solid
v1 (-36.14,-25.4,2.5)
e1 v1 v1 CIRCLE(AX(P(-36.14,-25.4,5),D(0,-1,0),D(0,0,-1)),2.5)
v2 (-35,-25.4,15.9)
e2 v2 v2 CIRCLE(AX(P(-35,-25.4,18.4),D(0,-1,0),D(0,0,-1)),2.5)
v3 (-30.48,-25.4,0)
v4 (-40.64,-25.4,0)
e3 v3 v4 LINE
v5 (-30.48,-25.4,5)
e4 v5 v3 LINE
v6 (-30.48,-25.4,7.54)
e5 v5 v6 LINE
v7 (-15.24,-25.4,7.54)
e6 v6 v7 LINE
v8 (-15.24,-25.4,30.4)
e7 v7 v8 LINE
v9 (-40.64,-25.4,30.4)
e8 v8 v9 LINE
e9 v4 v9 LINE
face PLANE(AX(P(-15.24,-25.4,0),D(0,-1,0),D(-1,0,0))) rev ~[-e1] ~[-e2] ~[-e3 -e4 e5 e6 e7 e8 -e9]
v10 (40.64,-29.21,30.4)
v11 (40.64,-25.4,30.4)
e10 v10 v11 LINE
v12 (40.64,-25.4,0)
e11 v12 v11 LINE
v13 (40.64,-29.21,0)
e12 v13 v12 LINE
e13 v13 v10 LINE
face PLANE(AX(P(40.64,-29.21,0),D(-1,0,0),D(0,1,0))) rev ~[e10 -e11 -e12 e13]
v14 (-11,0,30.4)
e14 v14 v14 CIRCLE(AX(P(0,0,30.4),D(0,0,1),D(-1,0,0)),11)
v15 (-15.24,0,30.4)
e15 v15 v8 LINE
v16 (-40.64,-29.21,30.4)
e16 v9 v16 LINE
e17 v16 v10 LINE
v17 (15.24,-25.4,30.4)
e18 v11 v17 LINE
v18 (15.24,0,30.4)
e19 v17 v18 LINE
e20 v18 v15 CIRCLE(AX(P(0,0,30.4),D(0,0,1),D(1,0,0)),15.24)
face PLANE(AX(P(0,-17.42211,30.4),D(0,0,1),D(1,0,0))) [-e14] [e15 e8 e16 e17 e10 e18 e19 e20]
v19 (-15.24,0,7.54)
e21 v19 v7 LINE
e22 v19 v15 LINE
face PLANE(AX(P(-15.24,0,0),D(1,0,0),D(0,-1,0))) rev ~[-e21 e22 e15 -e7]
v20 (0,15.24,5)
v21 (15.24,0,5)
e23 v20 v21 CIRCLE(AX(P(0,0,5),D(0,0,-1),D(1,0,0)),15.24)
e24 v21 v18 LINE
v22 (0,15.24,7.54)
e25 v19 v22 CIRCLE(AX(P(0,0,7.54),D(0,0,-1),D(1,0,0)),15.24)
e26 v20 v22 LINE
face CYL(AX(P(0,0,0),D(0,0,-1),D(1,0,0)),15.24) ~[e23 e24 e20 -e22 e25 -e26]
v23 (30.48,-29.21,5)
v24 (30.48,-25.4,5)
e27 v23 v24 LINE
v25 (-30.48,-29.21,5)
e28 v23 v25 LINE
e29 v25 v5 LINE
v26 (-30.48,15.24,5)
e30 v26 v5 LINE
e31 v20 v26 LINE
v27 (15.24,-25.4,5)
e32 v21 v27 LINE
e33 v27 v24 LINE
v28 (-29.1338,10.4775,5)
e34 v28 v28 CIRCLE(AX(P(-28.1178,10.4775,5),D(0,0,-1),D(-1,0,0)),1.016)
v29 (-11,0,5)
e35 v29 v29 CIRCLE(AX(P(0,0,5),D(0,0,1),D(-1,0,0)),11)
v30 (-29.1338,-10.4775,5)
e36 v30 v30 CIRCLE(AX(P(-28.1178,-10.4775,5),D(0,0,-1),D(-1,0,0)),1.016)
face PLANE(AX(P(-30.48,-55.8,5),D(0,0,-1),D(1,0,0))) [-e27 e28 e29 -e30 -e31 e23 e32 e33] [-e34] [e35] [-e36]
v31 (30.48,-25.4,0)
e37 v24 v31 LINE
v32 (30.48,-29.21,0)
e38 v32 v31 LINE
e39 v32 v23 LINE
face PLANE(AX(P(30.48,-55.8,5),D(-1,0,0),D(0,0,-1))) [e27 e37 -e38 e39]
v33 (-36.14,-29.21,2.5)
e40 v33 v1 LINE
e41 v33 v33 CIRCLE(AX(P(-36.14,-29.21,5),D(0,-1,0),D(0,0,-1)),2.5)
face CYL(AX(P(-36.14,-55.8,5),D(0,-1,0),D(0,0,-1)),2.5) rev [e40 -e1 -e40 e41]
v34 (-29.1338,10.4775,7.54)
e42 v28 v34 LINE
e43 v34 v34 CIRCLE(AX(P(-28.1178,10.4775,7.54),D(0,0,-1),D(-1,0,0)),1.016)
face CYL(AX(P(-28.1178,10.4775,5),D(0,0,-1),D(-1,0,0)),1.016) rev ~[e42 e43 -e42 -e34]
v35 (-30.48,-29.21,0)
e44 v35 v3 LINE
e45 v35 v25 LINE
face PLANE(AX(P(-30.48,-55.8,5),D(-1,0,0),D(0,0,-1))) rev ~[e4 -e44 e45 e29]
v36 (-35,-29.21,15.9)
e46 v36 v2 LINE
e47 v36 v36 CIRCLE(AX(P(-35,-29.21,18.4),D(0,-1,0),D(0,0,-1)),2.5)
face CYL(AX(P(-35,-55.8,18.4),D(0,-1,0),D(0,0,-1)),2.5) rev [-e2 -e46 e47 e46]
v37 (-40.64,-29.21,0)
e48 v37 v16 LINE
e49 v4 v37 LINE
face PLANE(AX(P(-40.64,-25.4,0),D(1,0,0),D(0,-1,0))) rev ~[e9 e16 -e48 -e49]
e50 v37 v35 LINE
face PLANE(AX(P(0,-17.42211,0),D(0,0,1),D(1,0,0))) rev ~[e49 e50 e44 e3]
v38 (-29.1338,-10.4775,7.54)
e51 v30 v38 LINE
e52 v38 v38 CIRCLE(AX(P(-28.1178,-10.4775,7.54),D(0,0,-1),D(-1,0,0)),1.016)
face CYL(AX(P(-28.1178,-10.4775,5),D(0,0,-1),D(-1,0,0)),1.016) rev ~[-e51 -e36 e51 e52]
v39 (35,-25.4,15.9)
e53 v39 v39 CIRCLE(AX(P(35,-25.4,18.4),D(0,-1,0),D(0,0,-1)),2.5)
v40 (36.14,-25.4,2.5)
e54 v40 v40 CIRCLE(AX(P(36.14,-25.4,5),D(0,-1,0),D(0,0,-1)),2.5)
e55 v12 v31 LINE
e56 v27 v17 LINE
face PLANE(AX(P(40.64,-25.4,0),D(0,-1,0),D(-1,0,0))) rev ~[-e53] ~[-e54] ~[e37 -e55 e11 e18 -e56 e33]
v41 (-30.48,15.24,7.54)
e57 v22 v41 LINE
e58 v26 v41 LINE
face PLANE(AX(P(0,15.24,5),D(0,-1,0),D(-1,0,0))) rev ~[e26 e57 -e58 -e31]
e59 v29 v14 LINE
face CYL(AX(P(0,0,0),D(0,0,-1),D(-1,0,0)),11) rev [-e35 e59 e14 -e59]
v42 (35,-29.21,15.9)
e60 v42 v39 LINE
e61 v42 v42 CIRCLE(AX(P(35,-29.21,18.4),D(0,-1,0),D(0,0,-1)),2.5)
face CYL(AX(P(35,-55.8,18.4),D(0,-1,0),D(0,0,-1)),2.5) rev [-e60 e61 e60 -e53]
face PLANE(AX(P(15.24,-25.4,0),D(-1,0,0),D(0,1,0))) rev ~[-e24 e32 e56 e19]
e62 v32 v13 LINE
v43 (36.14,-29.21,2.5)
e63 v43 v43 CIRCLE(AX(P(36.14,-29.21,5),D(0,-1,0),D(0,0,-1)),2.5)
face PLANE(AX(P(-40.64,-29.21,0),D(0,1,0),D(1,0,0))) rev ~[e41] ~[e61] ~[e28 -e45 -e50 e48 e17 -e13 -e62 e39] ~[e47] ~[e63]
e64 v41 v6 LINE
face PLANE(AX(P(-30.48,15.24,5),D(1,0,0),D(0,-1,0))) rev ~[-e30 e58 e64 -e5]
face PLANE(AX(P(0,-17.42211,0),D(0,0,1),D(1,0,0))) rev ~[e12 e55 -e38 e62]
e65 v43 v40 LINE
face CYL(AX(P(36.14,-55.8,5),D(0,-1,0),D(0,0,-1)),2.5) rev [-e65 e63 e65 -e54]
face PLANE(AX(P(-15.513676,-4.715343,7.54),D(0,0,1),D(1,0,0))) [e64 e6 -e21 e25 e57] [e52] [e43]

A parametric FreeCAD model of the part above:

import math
import FreeCAD as App
import Part
import Sketcher

V = App.Vector
Q = App.Units.Quantity

doc = App.newDocument("Part")
body = doc.addObject("PartDesign::Body", "Body")

sketch1 = body.newObject("Sketcher::SketchObject", "Sketch")
sketch1.AttachmentSupport = (doc.getObject("XY_Plane"), [""])
sketch1.MapMode = "FlatFace"
sketch1.addGeometry(Part.LineSegment(V(-40.64, -29.21, 0), V(40.64, -29.21, 0)), False)
sketch1.addGeometry(Part.LineSegment(V(40.64, -29.21, 0), V(40.64, -25.4, 0)), False)
sketch1.addGeometry(Part.LineSegment(V(40.64, -25.4, 0), V(15.24, -25.4, 0)), False)
sketch1.addGeometry(Part.LineSegment(V(15.24, -25.4, 0), V(15.24, 0, 0)), False)
sketch1.addGeometry(Part.ArcOfCircle(Part.Circle(V(0, 0, 0), V(0, 0, 1), 15.24), math.radians(0), math.radians(180)), False)
sketch1.addGeometry(Part.LineSegment(V(-15.24, 0, 0), V(-15.24, -25.4, 0)), False)
sketch1.addGeometry(Part.LineSegment(V(-15.24, -25.4, 0), V(-40.64, -25.4, 0)), False)
sketch1.addGeometry(Part.LineSegment(V(-40.64, -25.4, 0), V(-40.64, -29.21, 0)), False)
sketch1.addGeometry(Part.Circle(V(0, 0, 0), V(0, 0, 1), 11), False)
sketch1.addConstraint(Sketcher.Constraint("Coincident", 0, 2, 1, 1))
sketch1.addConstraint(Sketcher.Constraint("Coincident", 1, 2, 2, 1))
sketch1.addConstraint(Sketcher.Constraint("Coincident", 2, 2, 3, 1))
sketch1.addConstraint(Sketcher.Constraint("Tangent", 3, 2, 4, 1))
sketch1.addConstraint(Sketcher.Constraint("Tangent", 4, 2, 5, 1))
sketch1.addConstraint(Sketcher.Constraint("Coincident", 5, 2, 6, 1))
sketch1.addConstraint(Sketcher.Constraint("Coincident", 6, 2, 7, 1))
sketch1.addConstraint(Sketcher.Constraint("Coincident", 7, 2, 0, 1))
sketch1.addConstraint(Sketcher.Constraint("Horizontal", 0))
sketch1.addConstraint(Sketcher.Constraint("Vertical", 1))
sketch1.addConstraint(Sketcher.Constraint("Horizontal", 2))
sketch1.addConstraint(Sketcher.Constraint("Vertical", 3))
sketch1.addConstraint(Sketcher.Constraint("Vertical", 5))
sketch1.addConstraint(Sketcher.Constraint("Horizontal", 6))
sketch1.addConstraint(Sketcher.Constraint("Vertical", 7))
sketch1.addConstraint(Sketcher.Constraint("Coincident", 4, 3, -1, 1))
sketch1.addConstraint(Sketcher.Constraint("Coincident", 8, 3, -1, 1))
sketch1.addConstraint(Sketcher.Constraint("Symmetric", 1, 2, 6, 2, -2))
sketch1.addConstraint(Sketcher.Constraint("Equal", 6, 3))
sketch1.addConstraint(Sketcher.Constraint("Radius", 4, Q("0.6 in")))
sketch1.addConstraint(Sketcher.Constraint("DistanceX", 2, 2, 2, 1, Q("1 in")))
sketch1.addConstraint(Sketcher.Constraint("DistanceY", 1, 1, 1, 2, Q("0.15 in")))
sketch1.addConstraint(Sketcher.Constraint("Diameter", 8, Q("22 mm")))
pad1 = body.newObject("PartDesign::Pad", "Pad")
pad1.Profile = sketch1
pad1.Length = 30.4

sketch2 = body.newObject("Sketcher::SketchObject", "Sketch001")
sketch2.AttachmentSupport = (doc.getObject("XZ_Plane"), [""])
sketch2.MapMode = "FlatFace"
sketch2.AttachmentOffset = App.Placement(V(0, 0, 1 * 25.4), App.Rotation())
sketch2.addGeometry(Part.Circle(V(-36.14, 5, 0), V(0, 0, 1), 2.5), False)
sketch2.addGeometry(Part.Circle(V(-35, 18.4, 0), V(0, 0, 1), 2.5), False)
sketch2.addGeometry(Part.Circle(V(36.14, 5, 0), V(0, 0, 1), 2.5), False)
sketch2.addGeometry(Part.Circle(V(35, 18.4, 0), V(0, 0, 1), 2.5), False)
sketch2.addGeometry(Part.LineSegment(V(-30.48, 0, 0), V(-30.48, 5, 0)), False)
sketch2.addGeometry(Part.LineSegment(V(-30.48, 5, 0), V(30.48, 5, 0)), False)
sketch2.addGeometry(Part.LineSegment(V(30.48, 5, 0), V(30.48, 0, 0)), False)
sketch2.addGeometry(Part.LineSegment(V(30.48, 0, 0), V(-30.48, 0, 0)), False)
sketch2.addConstraint(Sketcher.Constraint("Coincident", 4, 2, 5, 1))
sketch2.addConstraint(Sketcher.Constraint("Coincident", 5, 2, 6, 1))
sketch2.addConstraint(Sketcher.Constraint("Coincident", 6, 2, 7, 1))
sketch2.addConstraint(Sketcher.Constraint("Coincident", 7, 2, 4, 1))
sketch2.addConstraint(Sketcher.Constraint("Vertical", 4))
sketch2.addConstraint(Sketcher.Constraint("Horizontal", 5))
sketch2.addConstraint(Sketcher.Constraint("Vertical", 6))
sketch2.addConstraint(Sketcher.Constraint("Horizontal", 7))
sketch2.addConstraint(Sketcher.Constraint("Equal", 0, 1))
sketch2.addConstraint(Sketcher.Constraint("Equal", 1, 2))
sketch2.addConstraint(Sketcher.Constraint("Equal", 2, 3))
sketch2.addConstraint(Sketcher.Constraint("Symmetric", 6, 2, 7, 2, -1, 1))
sketch2.addConstraint(Sketcher.Constraint("Symmetric", 0, 3, 2, 3, -2))
sketch2.addConstraint(Sketcher.Constraint("Symmetric", 1, 3, 3, 3, -2))
sketch2.addConstraint(Sketcher.Constraint("Horizontal", 2, 3, 4, 2))
sketch2.addConstraint(Sketcher.Constraint("DistanceX", 5, 1, 5, 2, Q("2.4 in")))
sketch2.addConstraint(Sketcher.Constraint("Diameter", 0, Q("5 mm")))
sketch2.addConstraint(Sketcher.Constraint("DistanceY", 4, 1, 4, 2, Q("5 mm")))
sketch2.addConstraint(Sketcher.Constraint("DistanceX", 0, 3, -1, 1, Q("36.14 mm")))
sketch2.addConstraint(Sketcher.Constraint("DistanceX", 1, 3, -1, 1, Q("35 mm")))
sketch2.addConstraint(Sketcher.Constraint("DistanceY", -1, 1, 1, 3, Q("18.4 mm")))
pocket1 = body.newObject("PartDesign::Pocket", "Pocket")
pocket1.Profile = sketch2
pocket1.Type = "ThroughAll"
pocket1.Midplane = True

sketch3 = body.newObject("Sketcher::SketchObject", "Sketch002")
sketch3.AttachmentSupport = (doc.getObject("XY_Plane"), [""])
sketch3.MapMode = "FlatFace"
sketch3.AttachmentOffset = App.Placement(V(0, 0, 5), App.Rotation())
sketch3.addGeometry(Part.LineSegment(V(0, 15.24, 0), V(0, 11, 0)), False)
sketch3.addGeometry(Part.ArcOfCircle(Part.Circle(V(0, 0, 0), V(0, 0, 1), 11), math.radians(90), math.radians(270)), False)
sketch3.addGeometry(Part.LineSegment(V(0, -11, 0), V(0, -25.4, 0)), False)
sketch3.addGeometry(Part.LineSegment(V(0, -25.4, 0), V(-30.48, -25.4, 0)), False)
sketch3.addGeometry(Part.LineSegment(V(-30.48, -25.4, 0), V(-30.48, 15.24, 0)), False)
sketch3.addGeometry(Part.LineSegment(V(-30.48, 15.24, 0), V(0, 15.24, 0)), False)
sketch3.addGeometry(Part.Circle(V(-28.1178, -10.4775, 0), V(0, 0, 1), 1.016), False)
sketch3.addGeometry(Part.Circle(V(-28.1178, 10.4775, 0), V(0, 0, 1), 1.016), False)
sketch3.addConstraint(Sketcher.Constraint("Coincident", 0, 2, 1, 1))
sketch3.addConstraint(Sketcher.Constraint("Coincident", 1, 2, 2, 1))
sketch3.addConstraint(Sketcher.Constraint("Coincident", 2, 2, 3, 1))
sketch3.addConstraint(Sketcher.Constraint("Coincident", 3, 2, 4, 1))
sketch3.addConstraint(Sketcher.Constraint("Coincident", 4, 2, 5, 1))
sketch3.addConstraint(Sketcher.Constraint("Coincident", 5, 2, 0, 1))
sketch3.addConstraint(Sketcher.Constraint("Vertical", 0))
sketch3.addConstraint(Sketcher.Constraint("Vertical", 2))
sketch3.addConstraint(Sketcher.Constraint("Horizontal", 3))
sketch3.addConstraint(Sketcher.Constraint("Vertical", 4))
sketch3.addConstraint(Sketcher.Constraint("Horizontal", 5))
sketch3.addConstraint(Sketcher.Constraint("Coincident", 1, 3, -1, 1))
sketch3.addConstraint(Sketcher.Constraint("Equal", 6, 7))
sketch3.addConstraint(Sketcher.Constraint("Symmetric", 6, 3, 7, 3, -1))
sketch3.addConstraint(Sketcher.Constraint("PointOnObject", 0, 2, -2))
sketch3.addConstraint(Sketcher.Constraint("PointOnObject", 1, 2, -2))
sketch3.addConstraint(Sketcher.Constraint("Diameter", 6, Q("0.08 in")))
sketch3.addConstraint(Sketcher.Constraint("DistanceX", 3, 2, 3, 1, Q("1.2 in")))
sketch3.addConstraint(Sketcher.Constraint("DistanceY", 4, 1, 4, 2, Q("1.6 in")))
sketch3.addConstraint(Sketcher.Constraint("DistanceY", 2, 2, -1, 1, Q("1 in")))
sketch3.addConstraint(Sketcher.Constraint("Radius", 1, Q("11 mm")))
sketch3.addConstraint(Sketcher.Constraint("DistanceX", 6, 3, -1, 1, Q("1.107 in")))
sketch3.addConstraint(Sketcher.Constraint("DistanceY", 6, 3, 7, 3, Q("0.825 in")))
pad2 = body.newObject("PartDesign::Pad", "Pad001")
pad2.Profile = sketch3
pad2.Length = Q("0.1 in")

doc.recompute()
